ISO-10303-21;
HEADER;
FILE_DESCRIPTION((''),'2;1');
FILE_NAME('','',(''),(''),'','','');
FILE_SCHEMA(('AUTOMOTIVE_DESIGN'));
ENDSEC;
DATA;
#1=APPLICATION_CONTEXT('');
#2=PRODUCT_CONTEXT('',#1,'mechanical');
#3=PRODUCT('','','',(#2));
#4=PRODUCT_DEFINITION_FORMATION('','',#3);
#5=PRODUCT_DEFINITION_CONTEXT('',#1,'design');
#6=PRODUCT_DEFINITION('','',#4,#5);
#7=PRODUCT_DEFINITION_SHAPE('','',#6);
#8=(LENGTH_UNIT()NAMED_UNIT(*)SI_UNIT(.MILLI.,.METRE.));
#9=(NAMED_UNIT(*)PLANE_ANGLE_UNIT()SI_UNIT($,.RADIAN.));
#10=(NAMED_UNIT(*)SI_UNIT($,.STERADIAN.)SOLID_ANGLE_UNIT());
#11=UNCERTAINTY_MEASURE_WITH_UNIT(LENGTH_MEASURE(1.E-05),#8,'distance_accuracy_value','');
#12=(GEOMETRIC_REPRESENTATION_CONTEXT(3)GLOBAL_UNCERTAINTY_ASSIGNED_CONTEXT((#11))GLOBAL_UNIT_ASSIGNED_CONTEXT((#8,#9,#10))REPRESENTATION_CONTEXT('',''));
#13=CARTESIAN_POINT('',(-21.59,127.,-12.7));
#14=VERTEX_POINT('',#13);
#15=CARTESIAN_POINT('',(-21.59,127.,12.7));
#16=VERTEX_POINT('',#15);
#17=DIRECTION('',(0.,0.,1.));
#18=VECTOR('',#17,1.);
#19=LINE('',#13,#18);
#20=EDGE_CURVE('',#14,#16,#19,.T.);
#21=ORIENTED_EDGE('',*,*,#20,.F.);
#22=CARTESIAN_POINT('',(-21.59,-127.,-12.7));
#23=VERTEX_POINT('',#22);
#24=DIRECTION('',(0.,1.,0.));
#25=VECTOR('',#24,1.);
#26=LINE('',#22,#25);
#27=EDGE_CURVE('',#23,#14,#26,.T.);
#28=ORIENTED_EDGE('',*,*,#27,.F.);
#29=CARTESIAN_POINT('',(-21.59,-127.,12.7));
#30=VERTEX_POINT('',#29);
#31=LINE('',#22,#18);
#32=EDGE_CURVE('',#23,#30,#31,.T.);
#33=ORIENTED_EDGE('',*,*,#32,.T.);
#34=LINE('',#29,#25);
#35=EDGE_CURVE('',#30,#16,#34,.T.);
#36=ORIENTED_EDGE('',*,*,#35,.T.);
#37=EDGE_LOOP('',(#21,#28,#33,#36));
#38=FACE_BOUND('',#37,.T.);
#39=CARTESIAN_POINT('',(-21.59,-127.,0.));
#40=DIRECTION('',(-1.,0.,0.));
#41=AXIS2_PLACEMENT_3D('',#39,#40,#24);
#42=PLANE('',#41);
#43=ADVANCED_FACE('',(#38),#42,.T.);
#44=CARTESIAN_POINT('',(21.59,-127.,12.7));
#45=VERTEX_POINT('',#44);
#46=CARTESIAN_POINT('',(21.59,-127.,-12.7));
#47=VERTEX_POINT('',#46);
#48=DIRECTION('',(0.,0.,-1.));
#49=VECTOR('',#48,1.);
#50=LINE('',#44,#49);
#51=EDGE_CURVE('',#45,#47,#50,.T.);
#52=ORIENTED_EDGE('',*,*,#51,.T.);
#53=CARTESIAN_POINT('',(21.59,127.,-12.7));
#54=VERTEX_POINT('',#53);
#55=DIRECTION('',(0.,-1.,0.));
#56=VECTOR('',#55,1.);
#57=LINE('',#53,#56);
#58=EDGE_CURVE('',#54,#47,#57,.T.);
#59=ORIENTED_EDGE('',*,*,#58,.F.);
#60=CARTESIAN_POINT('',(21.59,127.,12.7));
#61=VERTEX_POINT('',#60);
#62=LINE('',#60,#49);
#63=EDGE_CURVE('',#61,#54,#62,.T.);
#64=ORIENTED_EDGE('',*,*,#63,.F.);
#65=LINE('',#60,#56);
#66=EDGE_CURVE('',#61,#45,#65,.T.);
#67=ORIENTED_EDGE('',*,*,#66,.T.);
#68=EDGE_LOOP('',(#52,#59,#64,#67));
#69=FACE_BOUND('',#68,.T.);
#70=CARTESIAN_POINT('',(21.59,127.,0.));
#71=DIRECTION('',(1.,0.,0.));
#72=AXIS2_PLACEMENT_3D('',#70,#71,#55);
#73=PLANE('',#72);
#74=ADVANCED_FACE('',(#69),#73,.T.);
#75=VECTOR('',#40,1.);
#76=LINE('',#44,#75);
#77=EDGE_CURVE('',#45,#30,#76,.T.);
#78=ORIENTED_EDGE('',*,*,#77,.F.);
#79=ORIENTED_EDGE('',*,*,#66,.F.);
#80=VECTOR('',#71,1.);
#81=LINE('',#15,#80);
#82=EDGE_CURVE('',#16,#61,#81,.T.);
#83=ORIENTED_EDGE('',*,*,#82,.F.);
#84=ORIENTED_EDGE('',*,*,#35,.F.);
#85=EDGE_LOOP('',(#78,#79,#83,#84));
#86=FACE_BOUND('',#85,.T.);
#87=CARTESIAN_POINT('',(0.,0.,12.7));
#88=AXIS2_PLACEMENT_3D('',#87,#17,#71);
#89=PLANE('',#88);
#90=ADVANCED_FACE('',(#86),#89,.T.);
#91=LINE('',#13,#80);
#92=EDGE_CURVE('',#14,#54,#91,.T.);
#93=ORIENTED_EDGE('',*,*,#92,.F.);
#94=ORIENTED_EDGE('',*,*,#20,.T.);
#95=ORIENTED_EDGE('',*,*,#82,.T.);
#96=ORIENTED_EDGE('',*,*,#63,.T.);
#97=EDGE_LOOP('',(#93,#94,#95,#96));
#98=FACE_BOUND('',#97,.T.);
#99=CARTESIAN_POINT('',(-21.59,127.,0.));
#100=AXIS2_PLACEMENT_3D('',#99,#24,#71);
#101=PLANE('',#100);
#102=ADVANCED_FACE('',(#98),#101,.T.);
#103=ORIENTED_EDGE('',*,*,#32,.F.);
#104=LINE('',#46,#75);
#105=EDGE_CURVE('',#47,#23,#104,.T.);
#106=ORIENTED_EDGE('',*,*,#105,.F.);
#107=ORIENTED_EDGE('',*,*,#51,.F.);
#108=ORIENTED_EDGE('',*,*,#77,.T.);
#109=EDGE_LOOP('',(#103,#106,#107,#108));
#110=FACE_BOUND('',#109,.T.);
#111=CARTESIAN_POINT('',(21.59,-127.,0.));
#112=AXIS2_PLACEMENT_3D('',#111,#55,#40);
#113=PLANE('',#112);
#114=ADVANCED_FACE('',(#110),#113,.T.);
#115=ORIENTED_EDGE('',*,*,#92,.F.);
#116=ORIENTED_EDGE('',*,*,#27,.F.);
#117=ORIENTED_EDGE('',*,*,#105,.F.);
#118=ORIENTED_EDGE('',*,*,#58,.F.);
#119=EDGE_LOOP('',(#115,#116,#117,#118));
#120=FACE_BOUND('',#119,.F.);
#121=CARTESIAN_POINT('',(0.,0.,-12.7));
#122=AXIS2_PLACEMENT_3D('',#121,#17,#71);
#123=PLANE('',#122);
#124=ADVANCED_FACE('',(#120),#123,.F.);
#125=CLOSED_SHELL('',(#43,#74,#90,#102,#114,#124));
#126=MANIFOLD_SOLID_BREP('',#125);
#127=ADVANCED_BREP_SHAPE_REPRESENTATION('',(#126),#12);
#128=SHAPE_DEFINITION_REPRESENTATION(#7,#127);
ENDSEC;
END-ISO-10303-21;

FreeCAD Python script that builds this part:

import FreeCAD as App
import Part
import Sketcher
Q = App.Units.Quantity

doc = App.newDocument("Part")
params = doc.addObject("Spreadsheet::Sheet", "Params")
for row, (alias, value) in enumerate([
    ("sketch1_height", "10 in"),
    ("sketch1_width", "1.7 in"),
    ("pad1_length", "1 in"),
], start=1):
    params.set(f"A{row}", alias)
    params.set(f"B{row}", "=" + value)
    params.setAlias(f"B{row}", alias)

body = doc.addObject("PartDesign::Body", "Body")

# Sketch on XY plane
sketch1 = body.newObject("Sketcher::SketchObject", "Sketch")
sketch1.AttachmentSupport = (doc.getObject("XY_Plane"), [""])
sketch1.MapMode = "FlatFace"
sketch1.addGeometry([
    Part.LineSegment(App.Vector(22, 127, 0), App.Vector(-22, 127, 0)),
    Part.LineSegment(App.Vector(-22, 127, 0), App.Vector(-22, -127, 0)),
    Part.LineSegment(App.Vector(-22, -127, 0), App.Vector(22, -127, 0)),
    Part.LineSegment(App.Vector(22, -127, 0), App.Vector(22, 127, 0)),
], False)
sketch1.addConstraint([
    Sketcher.Constraint("Coincident", 0, 2, 1, 1),
    Sketcher.Constraint("Coincident", 1, 2, 2, 1),
    Sketcher.Constraint("Coincident", 2, 2, 3, 1),
    Sketcher.Constraint("Coincident", 3, 2, 0, 1),
    Sketcher.Constraint("Horizontal", 0),
    Sketcher.Constraint("Vertical", 1),
    Sketcher.Constraint("Horizontal", 2),
    Sketcher.Constraint("Vertical", 3),
    Sketcher.Constraint("Symmetric", 0, 2, 2, 2, -1, 1),
    Sketcher.Constraint("DistanceY", 1, 2, 1, 1, Q("10 in")),
    Sketcher.Constraint("DistanceX", 0, 2, 0, 1, Q("1.7 in")),
])
sketch1.setExpression("Constraints[9]", "Params.sketch1_height")
sketch1.setExpression("Constraints[10]", "Params.sketch1_width")
pad1 = body.newObject("PartDesign::Pad", "Pad")
pad1.Profile = sketch1
pad1.setExpression("Length", "Params.pad1_length")
pad1.Midplane = True

doc.recompute()
